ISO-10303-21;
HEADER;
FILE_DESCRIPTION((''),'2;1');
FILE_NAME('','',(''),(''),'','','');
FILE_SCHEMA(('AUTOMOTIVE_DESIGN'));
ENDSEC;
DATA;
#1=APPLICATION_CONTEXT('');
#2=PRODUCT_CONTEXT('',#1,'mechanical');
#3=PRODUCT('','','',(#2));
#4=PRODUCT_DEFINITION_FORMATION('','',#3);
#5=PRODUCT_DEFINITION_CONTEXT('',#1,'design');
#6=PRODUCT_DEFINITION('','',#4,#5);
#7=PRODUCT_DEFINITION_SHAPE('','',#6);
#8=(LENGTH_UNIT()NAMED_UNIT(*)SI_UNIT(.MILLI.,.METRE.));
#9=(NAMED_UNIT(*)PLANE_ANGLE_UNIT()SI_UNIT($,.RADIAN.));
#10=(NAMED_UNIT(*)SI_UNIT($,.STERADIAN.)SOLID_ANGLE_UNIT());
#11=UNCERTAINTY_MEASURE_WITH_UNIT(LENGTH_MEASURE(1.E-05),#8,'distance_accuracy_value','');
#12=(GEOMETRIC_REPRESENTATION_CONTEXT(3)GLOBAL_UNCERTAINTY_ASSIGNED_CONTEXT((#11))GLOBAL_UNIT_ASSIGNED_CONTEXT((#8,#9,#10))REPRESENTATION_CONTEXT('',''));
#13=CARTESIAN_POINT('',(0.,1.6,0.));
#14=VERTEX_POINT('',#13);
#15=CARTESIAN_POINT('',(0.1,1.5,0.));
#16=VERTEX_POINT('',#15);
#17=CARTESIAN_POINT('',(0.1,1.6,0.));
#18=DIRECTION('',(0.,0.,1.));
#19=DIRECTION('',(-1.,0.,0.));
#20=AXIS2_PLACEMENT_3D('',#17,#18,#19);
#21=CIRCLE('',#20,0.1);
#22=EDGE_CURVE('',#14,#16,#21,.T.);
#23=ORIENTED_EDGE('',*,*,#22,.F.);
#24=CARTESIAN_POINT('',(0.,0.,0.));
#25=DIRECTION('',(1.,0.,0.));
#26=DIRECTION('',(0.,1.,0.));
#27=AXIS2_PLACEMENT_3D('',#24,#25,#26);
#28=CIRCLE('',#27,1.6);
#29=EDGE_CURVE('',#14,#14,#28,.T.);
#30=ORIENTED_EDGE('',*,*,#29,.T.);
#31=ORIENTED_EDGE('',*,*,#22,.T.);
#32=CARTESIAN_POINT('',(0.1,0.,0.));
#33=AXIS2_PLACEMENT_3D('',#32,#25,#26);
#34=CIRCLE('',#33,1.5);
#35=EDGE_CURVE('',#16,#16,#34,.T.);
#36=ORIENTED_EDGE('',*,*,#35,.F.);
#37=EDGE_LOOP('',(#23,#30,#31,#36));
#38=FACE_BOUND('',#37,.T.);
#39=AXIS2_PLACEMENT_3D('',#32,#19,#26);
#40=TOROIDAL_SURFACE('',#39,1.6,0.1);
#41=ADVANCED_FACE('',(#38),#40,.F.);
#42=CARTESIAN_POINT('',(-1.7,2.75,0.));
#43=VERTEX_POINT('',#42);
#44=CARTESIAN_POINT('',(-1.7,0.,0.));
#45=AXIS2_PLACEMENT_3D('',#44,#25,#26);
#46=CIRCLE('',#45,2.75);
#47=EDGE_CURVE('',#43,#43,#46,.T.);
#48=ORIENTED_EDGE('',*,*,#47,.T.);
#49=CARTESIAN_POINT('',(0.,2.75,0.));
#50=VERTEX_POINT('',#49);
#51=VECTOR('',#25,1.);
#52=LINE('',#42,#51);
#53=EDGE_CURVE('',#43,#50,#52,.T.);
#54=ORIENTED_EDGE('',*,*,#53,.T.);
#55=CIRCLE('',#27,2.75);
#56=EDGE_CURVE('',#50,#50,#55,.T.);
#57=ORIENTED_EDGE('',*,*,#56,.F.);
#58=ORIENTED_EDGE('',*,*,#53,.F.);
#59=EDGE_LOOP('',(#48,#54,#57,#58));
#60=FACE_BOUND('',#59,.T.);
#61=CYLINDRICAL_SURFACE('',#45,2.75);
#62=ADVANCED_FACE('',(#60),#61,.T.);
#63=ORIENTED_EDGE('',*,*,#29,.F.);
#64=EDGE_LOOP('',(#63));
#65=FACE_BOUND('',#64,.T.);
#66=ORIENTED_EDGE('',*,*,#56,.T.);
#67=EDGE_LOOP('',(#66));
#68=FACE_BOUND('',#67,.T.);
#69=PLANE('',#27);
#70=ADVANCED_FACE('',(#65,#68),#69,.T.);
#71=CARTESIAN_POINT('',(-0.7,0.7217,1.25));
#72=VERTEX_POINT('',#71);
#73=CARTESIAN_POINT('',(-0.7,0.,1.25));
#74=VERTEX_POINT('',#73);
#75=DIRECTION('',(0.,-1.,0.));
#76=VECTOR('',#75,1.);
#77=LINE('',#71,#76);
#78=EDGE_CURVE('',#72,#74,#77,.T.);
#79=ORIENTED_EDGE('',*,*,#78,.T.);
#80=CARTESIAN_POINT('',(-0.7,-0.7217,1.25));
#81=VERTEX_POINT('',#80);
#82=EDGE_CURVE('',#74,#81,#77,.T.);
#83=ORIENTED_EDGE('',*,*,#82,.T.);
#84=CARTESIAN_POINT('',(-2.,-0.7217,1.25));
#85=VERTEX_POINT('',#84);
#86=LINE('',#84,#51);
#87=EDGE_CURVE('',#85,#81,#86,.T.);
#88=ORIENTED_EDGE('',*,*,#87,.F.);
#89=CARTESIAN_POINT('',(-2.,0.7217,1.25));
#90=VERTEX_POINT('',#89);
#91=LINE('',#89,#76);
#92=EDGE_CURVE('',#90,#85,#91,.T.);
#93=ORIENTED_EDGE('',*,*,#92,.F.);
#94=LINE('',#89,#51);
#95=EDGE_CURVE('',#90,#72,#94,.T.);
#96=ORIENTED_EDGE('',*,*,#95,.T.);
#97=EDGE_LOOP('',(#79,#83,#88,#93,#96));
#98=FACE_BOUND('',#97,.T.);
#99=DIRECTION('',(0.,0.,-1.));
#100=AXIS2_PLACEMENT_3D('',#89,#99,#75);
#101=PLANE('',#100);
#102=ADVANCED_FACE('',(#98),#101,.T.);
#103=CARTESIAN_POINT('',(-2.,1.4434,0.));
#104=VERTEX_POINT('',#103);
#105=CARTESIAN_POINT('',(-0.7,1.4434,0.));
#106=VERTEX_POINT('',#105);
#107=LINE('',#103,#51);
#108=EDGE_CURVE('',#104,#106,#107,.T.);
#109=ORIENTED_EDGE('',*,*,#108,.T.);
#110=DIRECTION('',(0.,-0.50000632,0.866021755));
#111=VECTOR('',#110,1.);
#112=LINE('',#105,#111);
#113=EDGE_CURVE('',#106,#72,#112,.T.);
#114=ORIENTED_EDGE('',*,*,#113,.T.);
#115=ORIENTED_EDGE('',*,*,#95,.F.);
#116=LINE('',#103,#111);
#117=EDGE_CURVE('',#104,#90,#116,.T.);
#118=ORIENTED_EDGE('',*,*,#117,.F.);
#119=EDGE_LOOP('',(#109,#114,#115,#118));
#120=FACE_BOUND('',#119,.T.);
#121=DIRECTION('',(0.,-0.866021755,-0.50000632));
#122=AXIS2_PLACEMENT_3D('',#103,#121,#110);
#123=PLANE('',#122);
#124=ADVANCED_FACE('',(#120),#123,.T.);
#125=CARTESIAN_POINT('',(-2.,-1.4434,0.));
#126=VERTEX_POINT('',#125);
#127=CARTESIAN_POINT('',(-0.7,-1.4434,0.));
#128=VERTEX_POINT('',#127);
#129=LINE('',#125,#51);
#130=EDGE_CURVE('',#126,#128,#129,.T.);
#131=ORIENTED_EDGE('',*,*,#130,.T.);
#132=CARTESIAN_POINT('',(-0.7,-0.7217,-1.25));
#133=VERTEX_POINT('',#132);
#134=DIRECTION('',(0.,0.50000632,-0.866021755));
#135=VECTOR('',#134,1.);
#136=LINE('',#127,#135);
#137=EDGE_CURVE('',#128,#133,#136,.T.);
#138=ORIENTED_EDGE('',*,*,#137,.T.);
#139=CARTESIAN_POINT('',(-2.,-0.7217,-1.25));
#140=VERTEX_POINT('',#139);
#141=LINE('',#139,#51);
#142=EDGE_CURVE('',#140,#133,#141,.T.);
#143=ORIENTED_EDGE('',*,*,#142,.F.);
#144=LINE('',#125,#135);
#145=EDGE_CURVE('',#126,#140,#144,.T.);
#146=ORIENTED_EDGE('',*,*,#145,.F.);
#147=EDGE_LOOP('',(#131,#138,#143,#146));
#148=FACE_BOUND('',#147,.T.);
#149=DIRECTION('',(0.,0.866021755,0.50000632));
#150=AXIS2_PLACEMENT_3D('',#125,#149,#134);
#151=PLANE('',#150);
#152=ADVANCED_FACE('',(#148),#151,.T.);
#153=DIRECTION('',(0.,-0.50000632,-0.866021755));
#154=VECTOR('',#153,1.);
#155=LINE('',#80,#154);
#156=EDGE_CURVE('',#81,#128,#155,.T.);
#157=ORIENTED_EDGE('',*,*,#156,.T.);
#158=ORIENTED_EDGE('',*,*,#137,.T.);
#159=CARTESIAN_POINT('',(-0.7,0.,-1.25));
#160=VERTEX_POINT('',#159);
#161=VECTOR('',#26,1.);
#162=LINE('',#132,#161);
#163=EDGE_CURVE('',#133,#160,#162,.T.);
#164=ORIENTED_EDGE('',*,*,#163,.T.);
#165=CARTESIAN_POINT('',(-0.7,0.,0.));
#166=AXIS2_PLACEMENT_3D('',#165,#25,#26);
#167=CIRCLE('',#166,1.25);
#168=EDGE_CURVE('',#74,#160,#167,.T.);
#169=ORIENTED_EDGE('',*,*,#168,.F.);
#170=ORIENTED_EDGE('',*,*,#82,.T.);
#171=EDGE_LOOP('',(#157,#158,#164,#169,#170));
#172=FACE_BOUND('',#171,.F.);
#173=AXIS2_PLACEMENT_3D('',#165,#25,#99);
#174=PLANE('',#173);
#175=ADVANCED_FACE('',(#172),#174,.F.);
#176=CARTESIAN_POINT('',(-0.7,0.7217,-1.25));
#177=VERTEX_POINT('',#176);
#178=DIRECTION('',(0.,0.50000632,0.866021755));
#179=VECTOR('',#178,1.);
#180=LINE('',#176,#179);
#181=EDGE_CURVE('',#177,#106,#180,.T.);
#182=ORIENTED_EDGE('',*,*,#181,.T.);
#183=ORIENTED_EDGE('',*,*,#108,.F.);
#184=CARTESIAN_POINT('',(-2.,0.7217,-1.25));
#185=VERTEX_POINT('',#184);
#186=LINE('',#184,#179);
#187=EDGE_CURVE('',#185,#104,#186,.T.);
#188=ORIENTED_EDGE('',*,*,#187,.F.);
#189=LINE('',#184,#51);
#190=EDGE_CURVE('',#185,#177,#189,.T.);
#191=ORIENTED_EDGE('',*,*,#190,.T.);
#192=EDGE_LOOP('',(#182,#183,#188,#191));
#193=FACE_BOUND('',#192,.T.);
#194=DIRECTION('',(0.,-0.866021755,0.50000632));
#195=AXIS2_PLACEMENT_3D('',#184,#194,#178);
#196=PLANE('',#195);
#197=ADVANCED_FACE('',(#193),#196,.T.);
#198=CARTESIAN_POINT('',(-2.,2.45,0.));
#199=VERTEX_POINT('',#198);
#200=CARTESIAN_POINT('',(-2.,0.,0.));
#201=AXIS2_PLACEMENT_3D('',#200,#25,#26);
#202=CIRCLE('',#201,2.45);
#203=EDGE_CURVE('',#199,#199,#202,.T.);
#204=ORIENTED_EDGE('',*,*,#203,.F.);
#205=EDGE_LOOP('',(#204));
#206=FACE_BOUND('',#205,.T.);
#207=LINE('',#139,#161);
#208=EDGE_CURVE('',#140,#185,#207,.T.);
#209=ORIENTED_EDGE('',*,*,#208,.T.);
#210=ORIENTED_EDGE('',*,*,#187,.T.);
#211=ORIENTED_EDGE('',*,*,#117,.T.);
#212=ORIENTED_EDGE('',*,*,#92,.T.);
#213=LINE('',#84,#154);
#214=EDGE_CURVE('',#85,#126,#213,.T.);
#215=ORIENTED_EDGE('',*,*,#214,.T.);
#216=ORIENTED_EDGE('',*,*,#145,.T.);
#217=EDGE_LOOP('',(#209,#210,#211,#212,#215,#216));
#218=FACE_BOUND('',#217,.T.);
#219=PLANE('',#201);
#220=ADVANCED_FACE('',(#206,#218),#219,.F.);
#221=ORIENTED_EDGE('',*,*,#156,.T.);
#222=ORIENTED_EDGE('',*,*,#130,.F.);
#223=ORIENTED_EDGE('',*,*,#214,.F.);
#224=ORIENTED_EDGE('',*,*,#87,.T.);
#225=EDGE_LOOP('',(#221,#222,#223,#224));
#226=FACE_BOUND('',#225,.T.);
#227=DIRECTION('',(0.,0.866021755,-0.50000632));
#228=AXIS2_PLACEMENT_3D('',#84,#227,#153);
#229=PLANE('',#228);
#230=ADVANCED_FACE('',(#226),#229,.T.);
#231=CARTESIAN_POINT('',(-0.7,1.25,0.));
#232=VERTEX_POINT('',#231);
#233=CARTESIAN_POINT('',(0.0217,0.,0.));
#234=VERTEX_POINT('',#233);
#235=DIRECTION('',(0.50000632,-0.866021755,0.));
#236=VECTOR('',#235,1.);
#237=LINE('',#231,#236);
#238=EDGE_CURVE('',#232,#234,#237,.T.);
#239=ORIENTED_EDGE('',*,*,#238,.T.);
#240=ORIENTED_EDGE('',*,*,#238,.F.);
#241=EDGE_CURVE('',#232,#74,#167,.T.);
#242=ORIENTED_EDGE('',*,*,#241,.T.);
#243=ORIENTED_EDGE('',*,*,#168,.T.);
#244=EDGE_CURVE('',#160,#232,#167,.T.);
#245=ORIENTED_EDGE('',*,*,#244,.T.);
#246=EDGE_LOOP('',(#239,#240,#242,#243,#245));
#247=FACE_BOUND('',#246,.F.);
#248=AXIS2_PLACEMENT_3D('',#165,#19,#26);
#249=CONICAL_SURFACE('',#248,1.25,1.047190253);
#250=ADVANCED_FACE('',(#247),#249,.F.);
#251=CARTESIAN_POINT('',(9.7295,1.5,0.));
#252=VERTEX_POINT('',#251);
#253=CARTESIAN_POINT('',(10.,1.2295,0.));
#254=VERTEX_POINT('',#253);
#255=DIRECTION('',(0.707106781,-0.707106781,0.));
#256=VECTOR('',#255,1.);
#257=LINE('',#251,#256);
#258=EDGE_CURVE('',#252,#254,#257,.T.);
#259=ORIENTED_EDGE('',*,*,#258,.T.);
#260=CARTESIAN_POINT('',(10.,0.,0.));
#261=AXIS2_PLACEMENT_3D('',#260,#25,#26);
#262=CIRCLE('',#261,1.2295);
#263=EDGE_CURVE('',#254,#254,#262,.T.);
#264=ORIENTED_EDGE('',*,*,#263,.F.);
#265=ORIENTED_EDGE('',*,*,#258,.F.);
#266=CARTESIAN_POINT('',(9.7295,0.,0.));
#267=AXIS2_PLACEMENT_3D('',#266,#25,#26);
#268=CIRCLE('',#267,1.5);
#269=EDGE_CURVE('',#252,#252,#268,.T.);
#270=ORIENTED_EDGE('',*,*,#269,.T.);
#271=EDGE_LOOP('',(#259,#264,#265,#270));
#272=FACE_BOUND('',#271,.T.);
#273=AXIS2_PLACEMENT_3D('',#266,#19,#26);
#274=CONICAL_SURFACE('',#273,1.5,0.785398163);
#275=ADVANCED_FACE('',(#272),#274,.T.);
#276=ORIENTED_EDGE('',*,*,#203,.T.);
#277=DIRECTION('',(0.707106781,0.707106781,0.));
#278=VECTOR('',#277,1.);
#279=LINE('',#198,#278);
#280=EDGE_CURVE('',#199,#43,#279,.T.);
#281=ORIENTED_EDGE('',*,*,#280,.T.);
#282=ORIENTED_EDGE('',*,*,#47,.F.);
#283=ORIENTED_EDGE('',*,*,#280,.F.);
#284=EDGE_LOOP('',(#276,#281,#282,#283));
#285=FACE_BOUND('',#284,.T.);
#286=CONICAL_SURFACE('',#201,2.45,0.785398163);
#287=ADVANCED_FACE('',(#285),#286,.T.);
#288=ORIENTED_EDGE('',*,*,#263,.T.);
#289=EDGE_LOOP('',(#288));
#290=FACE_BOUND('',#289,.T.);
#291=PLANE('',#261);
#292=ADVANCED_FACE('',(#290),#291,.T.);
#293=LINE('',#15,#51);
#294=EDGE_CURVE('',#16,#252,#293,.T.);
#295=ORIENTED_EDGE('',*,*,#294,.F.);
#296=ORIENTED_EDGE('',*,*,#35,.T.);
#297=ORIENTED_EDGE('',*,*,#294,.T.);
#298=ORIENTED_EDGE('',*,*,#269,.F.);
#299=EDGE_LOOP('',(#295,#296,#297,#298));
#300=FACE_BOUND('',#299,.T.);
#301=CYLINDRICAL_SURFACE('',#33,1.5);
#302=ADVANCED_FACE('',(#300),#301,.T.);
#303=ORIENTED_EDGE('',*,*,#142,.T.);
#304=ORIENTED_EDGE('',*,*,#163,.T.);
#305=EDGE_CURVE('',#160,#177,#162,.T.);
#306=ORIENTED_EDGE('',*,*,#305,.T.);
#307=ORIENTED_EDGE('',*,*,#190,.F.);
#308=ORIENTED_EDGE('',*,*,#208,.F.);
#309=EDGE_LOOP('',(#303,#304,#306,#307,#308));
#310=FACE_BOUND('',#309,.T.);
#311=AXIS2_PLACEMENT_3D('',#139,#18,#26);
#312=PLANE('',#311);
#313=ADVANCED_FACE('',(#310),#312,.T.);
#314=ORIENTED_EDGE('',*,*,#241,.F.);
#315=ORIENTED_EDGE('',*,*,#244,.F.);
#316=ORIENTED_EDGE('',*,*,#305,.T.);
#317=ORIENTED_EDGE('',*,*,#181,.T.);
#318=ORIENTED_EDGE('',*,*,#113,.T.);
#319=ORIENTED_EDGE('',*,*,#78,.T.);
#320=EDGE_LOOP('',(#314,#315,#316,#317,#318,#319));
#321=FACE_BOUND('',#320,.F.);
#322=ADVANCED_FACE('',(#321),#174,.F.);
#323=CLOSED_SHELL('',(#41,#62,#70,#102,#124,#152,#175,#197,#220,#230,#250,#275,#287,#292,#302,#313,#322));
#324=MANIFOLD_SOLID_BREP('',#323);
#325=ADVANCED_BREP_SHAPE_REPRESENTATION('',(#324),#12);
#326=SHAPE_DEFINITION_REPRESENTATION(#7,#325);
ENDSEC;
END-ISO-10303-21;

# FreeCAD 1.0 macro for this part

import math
import FreeCAD as App
import Part
import Sketcher
from FreeCAD import Vector
Q = App.Units.Quantity

doc = App.newDocument("Part")
body = doc.addObject("PartDesign::Body", "Body")

sketch1 = body.newObject("Sketcher::SketchObject", "Sketch")
sketch1.AttachmentSupport = (doc.getObject("XY_Plane"), [""])
sketch1.MapMode = "FlatFace"
sketch1.addGeometry([
    Part.LineSegment(Vector(-2, 0, 0), Vector(10, 0, 0)),
    Part.LineSegment(Vector(10, 0, 0), Vector(10, 1.2295, 0)),
    Part.LineSegment(Vector(10, 1.2295, 0), Vector(9.7295, 1.5, 0)),
    Part.LineSegment(Vector(9.7295, 1.5, 0), Vector(0.1, 1.5, 0)),
    Part.ArcOfCircle(Part.Circle(Vector(0.1, 1.6, 0), Vector(0, 0, 1), 0.1), math.radians(180), math.radians(270)),
    Part.LineSegment(Vector(0, 1.6, 0), Vector(0, 2.75, 0)),
    Part.LineSegment(Vector(0, 2.75, 0), Vector(-1.7, 2.75, 0)),
    Part.LineSegment(Vector(-1.7, 2.75, 0), Vector(-2, 2.45, 0)),
    Part.LineSegment(Vector(-2, 2.45, 0), Vector(-2, 0, 0)),
], False)
sketch1.addConstraint([
    Sketcher.Constraint("Coincident", 0, 2, 1, 1),
    Sketcher.Constraint("Coincident", 1, 2, 2, 1),
    Sketcher.Constraint("Coincident", 2, 2, 3, 1),
    Sketcher.Constraint("Tangent", 3, 2, 4, 2),
    Sketcher.Constraint("Tangent", 4, 1, 5, 1),
    Sketcher.Constraint("Coincident", 5, 2, 6, 1),
    Sketcher.Constraint("Coincident", 6, 2, 7, 1),
    Sketcher.Constraint("Coincident", 7, 2, 8, 1),
    Sketcher.Constraint("Coincident", 8, 2, 0, 1),
    Sketcher.Constraint("Horizontal", 0),
    Sketcher.Constraint("Vertical", 1),
    Sketcher.Constraint("Horizontal", 3),
    Sketcher.Constraint("Vertical", 5),
    Sketcher.Constraint("Horizontal", 6),
    Sketcher.Constraint("Vertical", 8),
    Sketcher.Constraint("PointOnObject", 0, 2, -1),
    Sketcher.Constraint("PointOnObject", 4, 1, -2),
    Sketcher.Constraint("Perpendicular", 2, 7),
    Sketcher.Constraint("Radius", 4, 0.1),
    Sketcher.Constraint("DistanceX", 0, 1, 0, 2, 12.0),
    Sketcher.Constraint("Angle", 2, Q("135 deg")),
    Sketcher.Constraint("DistanceX", 6, 2, 6, 1, 1.7),
    Sketcher.Constraint("DistanceX", -1, 1, 0, 2, 10.0),
    Sketcher.Constraint("DistanceY", 5, 1, 5, 2, 1.15),
    Sketcher.Constraint("DistanceY", 8, 2, 8, 1, 2.45),
    Sketcher.Constraint("DistanceX", 3, 2, 3, 1, 9.6295),
])
revolution = body.newObject("PartDesign::Revolution", "Revolution")
revolution.Profile = sketch1
revolution.ReferenceAxis = (sketch1, ["H_Axis"])
revolution.Angle = 360

sketch2 = body.newObject("Sketcher::SketchObject", "Sketch001")
sketch2.AttachmentSupport = (doc.getObject("YZ_Plane"), [""])
sketch2.MapMode = "FlatFace"
sketch2.AttachmentOffset = App.Placement(Vector(0, 0, -2), App.Rotation())
sketch2.addGeometry([
    Part.LineSegment(Vector(1.4434, 0, 0), Vector(0.7217, 1.25, 0)),
    Part.LineSegment(Vector(0.7217, 1.25, 0), Vector(-0.7217, 1.25, 0)),
    Part.LineSegment(Vector(-0.7217, 1.25, 0), Vector(-1.4434, 0, 0)),
    Part.LineSegment(Vector(-1.4434, 0, 0), Vector(-0.7217, -1.25, 0)),
    Part.LineSegment(Vector(-0.7217, -1.25, 0), Vector(0.7217, -1.25, 0)),
    Part.LineSegment(Vector(0.7217, -1.25, 0), Vector(1.4434, 0, 0)),
], False)
sketch2.addConstraint([
    Sketcher.Constraint("Coincident", 0, 2, 1, 1),
    Sketcher.Constraint("Coincident", 1, 2, 2, 1),
    Sketcher.Constraint("Coincident", 2, 2, 3, 1),
    Sketcher.Constraint("Coincident", 3, 2, 4, 1),
    Sketcher.Constraint("Coincident", 4, 2, 5, 1),
    Sketcher.Constraint("Coincident", 5, 2, 0, 1),
    Sketcher.Constraint("Horizontal", 1),
    Sketcher.Constraint("Horizontal", 4),
    Sketcher.Constraint("Symmetric", 0, 2, 3, 2, -1, 1),
    Sketcher.Constraint("Symmetric", 2, 2, 5, 2, -1, 1),
    Sketcher.Constraint("PointOnObject", 2, 2, -1),
    Sketcher.Constraint("Parallel", 2, 5),
    Sketcher.Constraint("Vertical", 1, 2, 3, 2),
    Sketcher.Constraint("Angle", 0, Q("120.0004 deg")),
    Sketcher.Constraint("DistanceY", 3, 2, 1, 2, 2.5),
    Sketcher.Constraint("DistanceX", 1, 2, 1, 1, 1.4434),
])
pocket1 = body.newObject("PartDesign::Pocket", "Pocket")
pocket1.Profile = sketch2
pocket1.Length = 1.3
pocket1.Reversed = True

sketch3 = body.newObject("Sketcher::SketchObject", "Sketch002")
sketch3.AttachmentSupport = (doc.getObject("XY_Plane"), [""])
sketch3.MapMode = "FlatFace"
sketch3.addGeometry([
    Part.LineSegment(Vector(-0.7, 0, 0), Vector(0.0217, 0, 0)),
    Part.LineSegment(Vector(0.0217, 0, 0), Vector(-0.7, 1.25, 0)),
    Part.LineSegment(Vector(-0.7, 1.25, 0), Vector(-0.7, 0, 0)),
], False)
sketch3.addConstraint([
    Sketcher.Constraint("Coincident", 0, 2, 1, 1),
    Sketcher.Constraint("Coincident", 1, 2, 2, 1),
    Sketcher.Constraint("Coincident", 2, 2, 0, 1),
    Sketcher.Constraint("Horizontal", 0),
    Sketcher.Constraint("Vertical", 2),
    Sketcher.Constraint("PointOnObject", 0, 2, -1),
    Sketcher.Constraint("Angle", 1, Q("120.0004 deg")),
    Sketcher.Constraint("DistanceY", 2, 2, 2, 1, 1.25),
    Sketcher.Constraint("DistanceX", 1, 2, -1, 1, 0.7),
])
groove = body.newObject("PartDesign::Groove", "Groove")
groove.Profile = sketch3
groove.ReferenceAxis = (sketch3, ["H_Axis"])
groove.Angle = 360

doc.recompute()
